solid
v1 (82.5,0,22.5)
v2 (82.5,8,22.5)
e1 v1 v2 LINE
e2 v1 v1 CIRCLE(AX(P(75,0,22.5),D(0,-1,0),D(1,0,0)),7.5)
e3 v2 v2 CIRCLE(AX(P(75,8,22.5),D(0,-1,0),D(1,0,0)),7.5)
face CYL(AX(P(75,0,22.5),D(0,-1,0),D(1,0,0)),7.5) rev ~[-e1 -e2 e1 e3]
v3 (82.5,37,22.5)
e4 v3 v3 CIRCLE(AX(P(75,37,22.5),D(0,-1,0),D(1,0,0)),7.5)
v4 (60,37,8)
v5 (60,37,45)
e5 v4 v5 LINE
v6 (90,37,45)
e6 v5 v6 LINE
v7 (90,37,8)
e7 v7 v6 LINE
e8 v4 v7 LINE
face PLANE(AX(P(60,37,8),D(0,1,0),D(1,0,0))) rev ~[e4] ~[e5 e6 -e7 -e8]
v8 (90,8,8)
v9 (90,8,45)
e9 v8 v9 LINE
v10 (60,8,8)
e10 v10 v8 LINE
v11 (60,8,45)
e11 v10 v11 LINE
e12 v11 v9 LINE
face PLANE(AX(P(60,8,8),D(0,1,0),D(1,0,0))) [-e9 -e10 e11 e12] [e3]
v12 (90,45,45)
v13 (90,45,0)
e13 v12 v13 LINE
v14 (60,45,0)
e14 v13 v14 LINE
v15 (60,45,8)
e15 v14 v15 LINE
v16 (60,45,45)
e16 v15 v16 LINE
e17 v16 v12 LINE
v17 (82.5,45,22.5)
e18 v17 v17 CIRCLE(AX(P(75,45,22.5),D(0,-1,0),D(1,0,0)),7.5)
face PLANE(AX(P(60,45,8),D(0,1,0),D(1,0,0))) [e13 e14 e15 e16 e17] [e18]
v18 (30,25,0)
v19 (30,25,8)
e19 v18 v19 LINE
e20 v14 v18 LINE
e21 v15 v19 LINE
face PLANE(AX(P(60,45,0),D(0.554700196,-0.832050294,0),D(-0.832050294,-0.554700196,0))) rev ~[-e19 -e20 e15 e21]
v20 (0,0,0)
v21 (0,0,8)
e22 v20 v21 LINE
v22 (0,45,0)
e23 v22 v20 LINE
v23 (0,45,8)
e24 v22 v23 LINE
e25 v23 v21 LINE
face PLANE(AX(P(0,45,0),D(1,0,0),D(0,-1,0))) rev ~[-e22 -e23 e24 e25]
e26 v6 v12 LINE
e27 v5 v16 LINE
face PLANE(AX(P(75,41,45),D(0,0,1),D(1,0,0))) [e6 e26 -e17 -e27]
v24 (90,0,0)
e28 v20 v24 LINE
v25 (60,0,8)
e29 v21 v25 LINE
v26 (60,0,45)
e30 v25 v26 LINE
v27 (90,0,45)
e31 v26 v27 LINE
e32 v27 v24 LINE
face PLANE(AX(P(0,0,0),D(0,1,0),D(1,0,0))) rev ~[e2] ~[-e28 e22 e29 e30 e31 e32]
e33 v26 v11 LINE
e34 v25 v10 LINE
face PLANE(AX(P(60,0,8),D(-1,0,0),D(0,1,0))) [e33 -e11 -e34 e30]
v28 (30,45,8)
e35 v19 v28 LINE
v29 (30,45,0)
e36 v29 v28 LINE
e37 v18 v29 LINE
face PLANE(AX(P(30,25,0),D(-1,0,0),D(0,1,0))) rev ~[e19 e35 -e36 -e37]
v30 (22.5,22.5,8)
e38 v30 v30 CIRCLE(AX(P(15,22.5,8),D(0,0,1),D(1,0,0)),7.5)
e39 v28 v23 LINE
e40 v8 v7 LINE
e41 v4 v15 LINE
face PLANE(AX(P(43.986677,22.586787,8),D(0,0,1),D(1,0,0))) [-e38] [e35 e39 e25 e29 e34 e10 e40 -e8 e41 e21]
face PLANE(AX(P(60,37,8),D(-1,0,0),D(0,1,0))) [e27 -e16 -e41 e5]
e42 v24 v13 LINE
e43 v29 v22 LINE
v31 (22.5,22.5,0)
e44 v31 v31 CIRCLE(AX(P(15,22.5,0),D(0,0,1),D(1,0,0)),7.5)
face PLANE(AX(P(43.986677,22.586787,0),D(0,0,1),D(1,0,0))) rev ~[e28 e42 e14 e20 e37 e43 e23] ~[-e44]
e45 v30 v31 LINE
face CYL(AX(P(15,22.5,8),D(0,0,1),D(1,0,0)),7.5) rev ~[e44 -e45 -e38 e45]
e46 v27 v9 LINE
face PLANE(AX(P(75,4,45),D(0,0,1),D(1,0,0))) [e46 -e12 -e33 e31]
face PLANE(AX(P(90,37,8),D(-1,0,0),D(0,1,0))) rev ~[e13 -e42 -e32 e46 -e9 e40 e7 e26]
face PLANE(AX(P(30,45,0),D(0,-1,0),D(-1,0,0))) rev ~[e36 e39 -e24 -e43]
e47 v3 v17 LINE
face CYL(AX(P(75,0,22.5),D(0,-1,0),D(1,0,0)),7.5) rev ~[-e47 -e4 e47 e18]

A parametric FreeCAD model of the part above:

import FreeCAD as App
import Part
import Sketcher
from FreeCAD import Vector

doc = App.newDocument("Part")
params = doc.addObject("Spreadsheet::Sheet", "Params")
for row, (alias, value) in enumerate([
    ("sketch1_width", "90 mm"),
    ("sketch1_width2", "30 mm"),
    ("sketch1_height", "45 mm"),
    ("sketch1_height2", "20 mm"),
    ("pad1_length", "8 mm"),
    ("sketch2_width", "30 mm"),
    ("sketch2_height", "8 mm"),
    ("pad2_length", "37 mm"),
    ("sketch3_diameter", "15 mm"),
    ("sketch4_diameter", "15 mm"),
    ("pocket2_length", "25 mm"),
], start=1):
    params.set(f"A{row}", alias)
    params.set(f"B{row}", "=" + value)
    params.setAlias(f"B{row}", alias)

body = doc.addObject("PartDesign::Body", "Body")

sketch1 = body.newObject("Sketcher::SketchObject", "Sketch")
sketch1.AttachmentSupport = (doc.getObject("XY_Plane"), [""])
sketch1.MapMode = "FlatFace"
sketch1.addGeometry([
    Part.LineSegment(Vector(0, 45, 0), Vector(0, 0, 0)),
    Part.LineSegment(Vector(0, 0, 0), Vector(90, 0, 0)),
    Part.LineSegment(Vector(90, 0, 0), Vector(90, 45, 0)),
    Part.LineSegment(Vector(90, 45, 0), Vector(60, 45, 0)),
    Part.LineSegment(Vector(60, 45, 0), Vector(30, 25, 0)),
    Part.LineSegment(Vector(30, 25, 0), Vector(30, 45, 0)),
    Part.LineSegment(Vector(30, 45, 0), Vector(0, 45, 0)),
], False)
sketch1.addConstraint([
    Sketcher.Constraint("Coincident", 0, 2, 1, 1),
    Sketcher.Constraint("Coincident", 1, 2, 2, 1),
    Sketcher.Constraint("Coincident", 2, 2, 3, 1),
    Sketcher.Constraint("Coincident", 3, 2, 4, 1),
    Sketcher.Constraint("Coincident", 4, 2, 5, 1),
    Sketcher.Constraint("Coincident", 5, 2, 6, 1),
    Sketcher.Constraint("Coincident", 6, 2, 0, 1),
    Sketcher.Constraint("Vertical", 0),
    Sketcher.Constraint("Horizontal", 1),
    Sketcher.Constraint("Vertical", 2),
    Sketcher.Constraint("Horizontal", 3),
    Sketcher.Constraint("Vertical", 5),
    Sketcher.Constraint("Horizontal", 6),
    Sketcher.Constraint("Coincident", 0, 2, -1, 1),
    Sketcher.Constraint("Horizontal", 3, 2, 5, 2),
    Sketcher.Constraint("Equal", 3, 6),
    Sketcher.Constraint("DistanceX", 1, 1, 1, 2, 90.0),
    Sketcher.Constraint("DistanceX", 3, 2, 3, 1, 30.0),
    Sketcher.Constraint("DistanceY", 0, 2, 0, 1, 45.0),
    Sketcher.Constraint("DistanceY", 5, 1, 5, 2, 20.0),
])
sketch1.setExpression("Constraints[16]", "Params.sketch1_width")
sketch1.setExpression("Constraints[17]", "Params.sketch1_width2")
sketch1.setExpression("Constraints[18]", "Params.sketch1_height")
sketch1.setExpression("Constraints[19]", "Params.sketch1_height2")
pad1 = body.newObject("PartDesign::Pad", "Pad")
pad1.Profile = sketch1
pad1.setExpression("Length", "Params.pad1_length")

sketch2 = body.newObject("Sketcher::SketchObject", "Sketch001")
sketch2.AttachmentSupport = (doc.getObject("XY_Plane"), [""])
sketch2.MapMode = "FlatFace"
sketch2.AttachmentOffset = App.Placement(Vector(0, 0, 8), App.Rotation())
sketch2.addGeometry([
    Part.LineSegment(Vector(60, 45, 0), Vector(60, 37, 0)),
    Part.LineSegment(Vector(60, 37, 0), Vector(90, 37, 0)),
    Part.LineSegment(Vector(90, 37, 0), Vector(90, 45, 0)),
    Part.LineSegment(Vector(90, 45, 0), Vector(60, 45, 0)),
    Part.LineSegment(Vector(60, 8, 0), Vector(60, 0, 0)),
    Part.LineSegment(Vector(60, 0, 0), Vector(90, 0, 0)),
    Part.LineSegment(Vector(90, 0, 0), Vector(90, 8, 0)),
    Part.LineSegment(Vector(90, 8, 0), Vector(60, 8, 0)),
], False)
sketch2.addConstraint([
    Sketcher.Constraint("Coincident", 0, 2, 1, 1),
    Sketcher.Constraint("Coincident", 1, 2, 2, 1),
    Sketcher.Constraint("Coincident", 2, 2, 3, 1),
    Sketcher.Constraint("Coincident", 3, 2, 0, 1),
    Sketcher.Constraint("Coincident", 4, 2, 5, 1),
    Sketcher.Constraint("Coincident", 5, 2, 6, 1),
    Sketcher.Constraint("Coincident", 6, 2, 7, 1),
    Sketcher.Constraint("Coincident", 7, 2, 4, 1),
    Sketcher.Constraint("Vertical", 0),
    Sketcher.Constraint("Horizontal", 1),
    Sketcher.Constraint("Vertical", 2),
    Sketcher.Constraint("Horizontal", 3),
    Sketcher.Constraint("Vertical", 4),
    Sketcher.Constraint("Horizontal", 5),
    Sketcher.Constraint("Vertical", 6),
    Sketcher.Constraint("Horizontal", 7),
    Sketcher.Constraint("PointOnObject", 4, 2, -1),
    Sketcher.Constraint("Vertical", 3, 2, 4, 2),
    Sketcher.Constraint("Vertical", 2, 2, 5, 2),
    Sketcher.Constraint("Equal", 2, 4),
    Sketcher.Constraint("DistanceX", 1, 1, 1, 2, 30.0),
    Sketcher.Constraint("DistanceY", 0, 2, 0, 1, 8.0),
    Sketcher.Constraint("DistanceX", -1, 1, 0, 2, 60.0),
    Sketcher.Constraint("DistanceY", -1, 1, 0, 2, 37.0),
])
sketch2.setExpression("Constraints[20]", "Params.sketch2_width")
sketch2.setExpression("Constraints[21]", "Params.sketch2_height")
pad2 = body.newObject("PartDesign::Pad", "Pad001")
pad2.Profile = sketch2
pad2.setExpression("Length", "Params.pad2_length")

sketch3 = body.newObject("Sketcher::SketchObject", "Sketch002")
sketch3.AttachmentSupport = (doc.getObject("XZ_Plane"), [""])
sketch3.MapMode = "FlatFace"
sketch3.addGeometry(Part.Circle(Vector(75, 22.5, 0), Vector(0, 0, 1), 7.5), False)
sketch3.addConstraint([
    Sketcher.Constraint("Diameter", 0, 15.0),
    Sketcher.Constraint("DistanceX", -1, 1, 0, 3, 75.0),
    Sketcher.Constraint("DistanceY", -1, 1, 0, 3, 22.5),
])
sketch3.setExpression("Constraints[0]", "Params.sketch3_diameter")
pocket1 = body.newObject("PartDesign::Pocket", "Pocket")
pocket1.Profile = sketch3
pocket1.Type = "ThroughAll"

sketch4 = body.newObject("Sketcher::SketchObject", "Sketch003")
sketch4.AttachmentSupport = (doc.getObject("XY_Plane"), [""])
sketch4.MapMode = "FlatFace"
sketch4.AttachmentOffset = App.Placement(Vector(0, 0, 8), App.Rotation())
sketch4.addGeometry(Part.Circle(Vector(15, 22.5, 0), Vector(0, 0, 1), 7.5), False)
sketch4.addConstraint([
    Sketcher.Constraint("Diameter", 0, 15.0),
    Sketcher.Constraint("DistanceX", -1, 1, 0, 3, 15.0),
    Sketcher.Constraint("DistanceY", -1, 1, 0, 3, 22.5),
])
sketch4.setExpression("Constraints[0]", "Params.sketch4_diameter")
pocket2 = body.newObject("PartDesign::Pocket", "Pocket001")
pocket2.Profile = sketch4
pocket2.setExpression("Length", "Params.pocket2_length")

doc.recompute()
